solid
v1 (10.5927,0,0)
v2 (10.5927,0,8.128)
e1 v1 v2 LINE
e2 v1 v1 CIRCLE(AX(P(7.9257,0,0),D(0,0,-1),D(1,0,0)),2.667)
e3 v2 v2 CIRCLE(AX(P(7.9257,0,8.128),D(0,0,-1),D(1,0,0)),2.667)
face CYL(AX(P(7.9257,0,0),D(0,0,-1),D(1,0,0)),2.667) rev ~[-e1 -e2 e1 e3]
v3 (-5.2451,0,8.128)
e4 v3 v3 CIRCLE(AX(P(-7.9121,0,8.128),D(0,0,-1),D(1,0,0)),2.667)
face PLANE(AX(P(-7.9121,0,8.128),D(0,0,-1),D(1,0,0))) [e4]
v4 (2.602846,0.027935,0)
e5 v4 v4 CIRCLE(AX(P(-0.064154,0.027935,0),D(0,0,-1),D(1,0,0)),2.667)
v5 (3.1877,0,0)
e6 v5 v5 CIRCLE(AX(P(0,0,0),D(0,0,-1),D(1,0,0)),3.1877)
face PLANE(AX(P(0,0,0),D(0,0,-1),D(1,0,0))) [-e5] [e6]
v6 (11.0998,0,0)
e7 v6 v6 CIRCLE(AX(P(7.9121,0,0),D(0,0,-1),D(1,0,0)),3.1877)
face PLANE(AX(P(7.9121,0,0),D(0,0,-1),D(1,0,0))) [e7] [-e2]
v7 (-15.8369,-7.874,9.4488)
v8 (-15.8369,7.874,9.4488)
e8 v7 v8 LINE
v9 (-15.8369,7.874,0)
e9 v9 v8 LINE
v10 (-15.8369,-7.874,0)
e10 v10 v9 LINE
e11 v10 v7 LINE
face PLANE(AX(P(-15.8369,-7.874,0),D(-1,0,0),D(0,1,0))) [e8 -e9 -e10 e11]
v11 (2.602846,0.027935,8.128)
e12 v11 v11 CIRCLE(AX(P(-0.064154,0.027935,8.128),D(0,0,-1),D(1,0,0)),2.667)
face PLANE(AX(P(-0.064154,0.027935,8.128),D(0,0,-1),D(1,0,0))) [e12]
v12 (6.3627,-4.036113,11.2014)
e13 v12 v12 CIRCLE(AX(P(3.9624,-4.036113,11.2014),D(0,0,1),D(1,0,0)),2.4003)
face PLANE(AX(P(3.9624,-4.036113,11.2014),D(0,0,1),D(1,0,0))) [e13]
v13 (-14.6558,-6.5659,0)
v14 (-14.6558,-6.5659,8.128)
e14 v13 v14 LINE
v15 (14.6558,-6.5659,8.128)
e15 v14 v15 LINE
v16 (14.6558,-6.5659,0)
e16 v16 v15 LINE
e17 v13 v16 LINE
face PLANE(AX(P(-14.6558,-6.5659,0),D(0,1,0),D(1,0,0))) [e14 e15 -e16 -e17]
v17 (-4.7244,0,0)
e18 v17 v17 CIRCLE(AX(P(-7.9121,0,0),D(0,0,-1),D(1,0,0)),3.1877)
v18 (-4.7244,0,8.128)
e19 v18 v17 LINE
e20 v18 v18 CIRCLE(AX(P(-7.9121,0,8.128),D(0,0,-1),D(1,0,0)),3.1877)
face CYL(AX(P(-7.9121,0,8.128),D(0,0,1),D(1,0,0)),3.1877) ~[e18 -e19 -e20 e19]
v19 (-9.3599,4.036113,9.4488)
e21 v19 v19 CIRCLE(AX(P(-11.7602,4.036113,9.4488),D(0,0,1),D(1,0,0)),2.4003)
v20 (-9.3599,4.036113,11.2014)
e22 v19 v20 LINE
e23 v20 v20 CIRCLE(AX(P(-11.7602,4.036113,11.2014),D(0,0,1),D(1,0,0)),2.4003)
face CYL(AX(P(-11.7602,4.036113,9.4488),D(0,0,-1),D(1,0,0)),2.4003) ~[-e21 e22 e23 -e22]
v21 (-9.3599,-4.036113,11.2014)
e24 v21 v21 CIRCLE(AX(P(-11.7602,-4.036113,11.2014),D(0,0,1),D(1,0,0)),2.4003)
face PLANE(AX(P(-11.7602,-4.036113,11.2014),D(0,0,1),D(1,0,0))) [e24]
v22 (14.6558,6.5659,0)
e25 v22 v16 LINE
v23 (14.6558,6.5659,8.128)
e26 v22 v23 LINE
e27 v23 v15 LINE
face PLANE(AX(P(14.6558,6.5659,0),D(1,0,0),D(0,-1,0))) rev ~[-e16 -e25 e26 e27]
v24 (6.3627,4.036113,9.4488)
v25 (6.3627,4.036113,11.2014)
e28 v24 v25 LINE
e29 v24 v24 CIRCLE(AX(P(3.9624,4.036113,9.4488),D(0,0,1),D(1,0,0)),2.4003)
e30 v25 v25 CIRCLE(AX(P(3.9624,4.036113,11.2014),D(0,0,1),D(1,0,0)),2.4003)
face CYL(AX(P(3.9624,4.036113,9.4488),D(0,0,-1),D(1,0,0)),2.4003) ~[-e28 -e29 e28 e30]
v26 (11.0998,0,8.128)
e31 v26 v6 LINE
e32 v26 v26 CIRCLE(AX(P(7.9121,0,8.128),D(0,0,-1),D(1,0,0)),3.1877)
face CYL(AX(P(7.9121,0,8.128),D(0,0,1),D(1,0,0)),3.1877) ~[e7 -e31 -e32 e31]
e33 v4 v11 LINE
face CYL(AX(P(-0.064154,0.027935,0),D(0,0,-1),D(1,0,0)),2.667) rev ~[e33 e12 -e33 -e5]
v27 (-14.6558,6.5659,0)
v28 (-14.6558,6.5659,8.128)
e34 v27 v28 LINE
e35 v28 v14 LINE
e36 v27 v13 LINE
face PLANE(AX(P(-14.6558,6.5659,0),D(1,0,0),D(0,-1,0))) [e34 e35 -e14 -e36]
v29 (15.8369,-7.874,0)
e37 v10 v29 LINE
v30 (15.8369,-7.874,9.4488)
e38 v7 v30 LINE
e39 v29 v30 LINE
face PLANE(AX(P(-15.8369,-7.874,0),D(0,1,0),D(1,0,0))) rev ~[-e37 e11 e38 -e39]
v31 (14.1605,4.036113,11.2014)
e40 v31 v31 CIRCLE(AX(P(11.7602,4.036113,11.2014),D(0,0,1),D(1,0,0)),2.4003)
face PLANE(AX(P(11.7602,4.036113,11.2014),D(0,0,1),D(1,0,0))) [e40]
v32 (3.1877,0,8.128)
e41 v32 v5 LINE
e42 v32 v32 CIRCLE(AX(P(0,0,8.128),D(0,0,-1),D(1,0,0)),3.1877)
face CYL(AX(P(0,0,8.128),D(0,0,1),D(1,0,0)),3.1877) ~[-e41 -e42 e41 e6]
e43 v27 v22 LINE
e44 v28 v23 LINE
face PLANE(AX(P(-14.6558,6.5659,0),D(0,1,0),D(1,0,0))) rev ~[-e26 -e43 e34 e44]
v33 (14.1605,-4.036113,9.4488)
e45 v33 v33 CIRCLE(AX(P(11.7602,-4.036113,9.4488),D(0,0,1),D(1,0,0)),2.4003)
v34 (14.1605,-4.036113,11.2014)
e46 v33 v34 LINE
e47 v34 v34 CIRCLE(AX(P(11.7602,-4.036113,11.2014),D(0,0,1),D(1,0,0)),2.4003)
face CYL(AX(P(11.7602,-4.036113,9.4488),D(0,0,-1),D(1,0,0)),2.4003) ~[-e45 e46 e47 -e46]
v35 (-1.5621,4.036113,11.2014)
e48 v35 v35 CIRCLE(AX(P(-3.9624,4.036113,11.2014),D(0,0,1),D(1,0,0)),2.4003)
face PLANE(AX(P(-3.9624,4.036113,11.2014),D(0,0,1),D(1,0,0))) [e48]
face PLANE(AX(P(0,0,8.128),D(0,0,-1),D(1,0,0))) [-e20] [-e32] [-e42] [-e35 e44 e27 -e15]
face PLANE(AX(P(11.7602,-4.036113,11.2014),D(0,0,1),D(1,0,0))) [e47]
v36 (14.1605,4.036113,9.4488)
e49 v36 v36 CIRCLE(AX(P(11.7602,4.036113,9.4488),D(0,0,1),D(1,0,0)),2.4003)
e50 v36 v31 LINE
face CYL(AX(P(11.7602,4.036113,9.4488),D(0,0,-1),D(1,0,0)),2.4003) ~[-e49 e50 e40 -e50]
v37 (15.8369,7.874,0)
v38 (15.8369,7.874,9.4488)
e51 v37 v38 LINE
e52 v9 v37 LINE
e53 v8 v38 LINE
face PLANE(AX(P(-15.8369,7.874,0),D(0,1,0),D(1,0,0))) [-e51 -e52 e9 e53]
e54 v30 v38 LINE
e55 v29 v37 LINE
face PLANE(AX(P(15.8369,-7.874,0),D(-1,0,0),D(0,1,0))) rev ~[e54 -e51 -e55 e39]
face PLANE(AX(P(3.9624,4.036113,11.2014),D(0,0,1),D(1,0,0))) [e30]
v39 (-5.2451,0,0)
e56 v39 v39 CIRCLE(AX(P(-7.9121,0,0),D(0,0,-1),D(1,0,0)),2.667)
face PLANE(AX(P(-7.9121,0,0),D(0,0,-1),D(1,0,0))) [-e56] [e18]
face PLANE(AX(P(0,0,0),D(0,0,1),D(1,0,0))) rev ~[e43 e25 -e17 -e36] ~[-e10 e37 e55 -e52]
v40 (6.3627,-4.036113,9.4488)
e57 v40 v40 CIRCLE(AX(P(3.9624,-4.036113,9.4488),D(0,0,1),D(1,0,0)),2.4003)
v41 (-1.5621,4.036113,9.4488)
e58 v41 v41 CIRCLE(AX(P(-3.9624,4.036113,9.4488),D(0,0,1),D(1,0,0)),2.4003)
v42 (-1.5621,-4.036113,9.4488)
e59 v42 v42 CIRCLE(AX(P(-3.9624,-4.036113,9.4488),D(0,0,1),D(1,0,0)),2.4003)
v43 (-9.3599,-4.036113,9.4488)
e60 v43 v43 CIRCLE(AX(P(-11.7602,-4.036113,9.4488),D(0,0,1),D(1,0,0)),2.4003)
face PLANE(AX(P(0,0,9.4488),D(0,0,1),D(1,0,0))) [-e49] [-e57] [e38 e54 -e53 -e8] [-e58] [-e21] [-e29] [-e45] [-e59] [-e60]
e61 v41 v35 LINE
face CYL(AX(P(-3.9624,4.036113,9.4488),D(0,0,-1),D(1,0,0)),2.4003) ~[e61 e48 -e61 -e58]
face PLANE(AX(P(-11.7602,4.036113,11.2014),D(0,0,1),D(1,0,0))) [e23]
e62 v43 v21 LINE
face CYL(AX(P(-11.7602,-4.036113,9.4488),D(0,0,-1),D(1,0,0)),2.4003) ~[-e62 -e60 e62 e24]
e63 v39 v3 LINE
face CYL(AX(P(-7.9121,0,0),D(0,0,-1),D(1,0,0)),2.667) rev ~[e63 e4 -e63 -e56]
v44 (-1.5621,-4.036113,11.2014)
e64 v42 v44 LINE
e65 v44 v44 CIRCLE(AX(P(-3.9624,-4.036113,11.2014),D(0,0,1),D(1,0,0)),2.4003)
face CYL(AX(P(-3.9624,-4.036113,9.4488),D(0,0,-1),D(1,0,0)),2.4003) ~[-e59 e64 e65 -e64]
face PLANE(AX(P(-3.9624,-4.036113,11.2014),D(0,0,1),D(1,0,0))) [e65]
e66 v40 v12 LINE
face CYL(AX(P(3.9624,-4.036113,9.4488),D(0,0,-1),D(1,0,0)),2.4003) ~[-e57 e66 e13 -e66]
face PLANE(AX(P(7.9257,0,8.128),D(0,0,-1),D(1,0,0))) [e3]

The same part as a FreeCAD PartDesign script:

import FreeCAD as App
import Part
import Sketcher
Q = App.Units.Quantity


def add_polygon(sketch, points):
    """Adds a closed chain of lines whose ends are joined by coincident constraints."""
    first, n = sketch.GeometryCount, len(points)
    for a, b in zip(points, points[1:] + points[:1]):
        sketch.addGeometry(Part.LineSegment(App.Vector(*a, 0), App.Vector(*b, 0)), False)
    for i in range(n):
        sketch.addConstraint(Sketcher.Constraint("Coincident", first + i, 2, first + (i + 1) % n, 1))

doc = App.newDocument("Part")
params = doc.addObject("Spreadsheet::Sheet", "Params")
for row, (alias, value) in enumerate([
    ("sketch1_height", "0.62 in"),
    ("sketch1_width", "1.247 in"),
    ("pad1_length", "0.372 in"),
    ("sketch2_diameter", "0.189 in"),
    ("pad2_length", "0.069 in"),
    ("sketch3_width", "1.154 in"),
    ("sketch3_height", "0.517 in"),
    ("pocket1_length", "0.32 in"),
    ("sketch4_diameter", "0.251 in"),
    ("pad3_length", "0.32 in"),
    ("sketch5_diameter", "0.21 in"),
    ("pocket2_length", "0.32 in"),
], start=1):
    params.set(f"A{row}", alias)
    params.set(f"B{row}", "=" + value)
    params.setAlias(f"B{row}", alias)

body = doc.addObject("PartDesign::Body", "Body")

# Sketch on XY plane
sketch1 = body.newObject("Sketcher::SketchObject", "Sketch")
sketch1.AttachmentSupport = (doc.getObject("XY_Plane"), [""])
sketch1.MapMode = "FlatFace"
add_polygon(sketch1, [(-16, 8), (-16, -8), (16, -8), (16, 8)])  # lines 0-3
sketch1.addConstraint([
    Sketcher.Constraint("Vertical", 0),
    Sketcher.Constraint("Horizontal", 1),
    Sketcher.Constraint("Vertical", 2),
    Sketcher.Constraint("Horizontal", 3),
    Sketcher.Constraint("Symmetric", 0, 2, 2, 2, -1, 1),
    Sketcher.Constraint("DistanceY", 0, 2, 0, 1, Q("0.62 in")),
    Sketcher.Constraint("DistanceX", 1, 1, 1, 2, Q("1.247 in")),
])
sketch1.setExpression("Constraints[9]", "Params.sketch1_height")
sketch1.setExpression("Constraints[10]", "Params.sketch1_width")
pad1 = body.newObject("PartDesign::Pad", "Pad")
pad1.Profile = sketch1
pad1.setExpression("Length", "Params.pad1_length")

# Sketch on XY plane
sketch2 = body.newObject("Sketcher::SketchObject", "Sketch001")
sketch2.AttachmentSupport = (doc.getObject("XY_Plane"), [""])
sketch2.MapMode = "FlatFace"
sketch2.AttachmentOffset = App.Placement(App.Vector(0, 0, 0.372 * 25.4), App.Rotation())
sketch2.addGeometry([
    Part.Circle(App.Vector(-11.8, 4, 0), App.Vector(0, 0, 1), 2.4),  # 0
    Part.Circle(App.Vector(4, -4, 0), App.Vector(0, 0, 1), 2.4),  # 1
    Part.Circle(App.Vector(4, 4, 0), App.Vector(0, 0, 1), 2.4),  # 2
    Part.Circle(App.Vector(-4, 4, 0), App.Vector(0, 0, 1), 2.4),  # 3
    Part.Circle(App.Vector(-4, -4, 0), App.Vector(0, 0, 1), 2.4),  # 4
    Part.Circle(App.Vector(-11.8, -4, 0), App.Vector(0, 0, 1), 2.4),  # 5
    Part.Circle(App.Vector(11.8, -4, 0), App.Vector(0, 0, 1), 2.4),  # 6
    Part.Circle(App.Vector(11.8, 4, 0), App.Vector(0, 0, 1), 2.4),  # 7
], False)
sketch2.addConstraint([
    Sketcher.Constraint("Equal", 0, 1),
    Sketcher.Constraint("Equal", 1, 2),
    Sketcher.Constraint("Equal", 2, 3),
    Sketcher.Constraint("Equal", 3, 4),
    Sketcher.Constraint("Equal", 4, 5),
    Sketcher.Constraint("Equal", 5, 6),
    Sketcher.Constraint("Equal", 6, 7),
    Sketcher.Constraint("Symmetric", 1, 3, 3, 3, -1, 1),
    Sketcher.Constraint("Symmetric", 2, 3, 4, 3, -1, 1),
    Sketcher.Constraint("Symmetric", 0, 3, 6, 3, -1, 1),
    Sketcher.Constraint("Symmetric", 5, 3, 7, 3, -1, 1),
    Sketcher.Constraint("Symmetric", 2, 3, 3, 3, -2),
    Sketcher.Constraint("Symmetric", 5, 3, 6, 3, -2),
    Sketcher.Constraint("Horizontal", 0, 3, 2, 3),
    Sketcher.Constraint("Diameter", 0, Q("0.189 in")),
    Sketcher.Constraint("DistanceX", 0, 3, -1, 1, Q("0.463 in")),
    Sketcher.Constraint("DistanceX", -1, 1, 1, 3, Q("0.156 in")),
    Sketcher.Constraint("DistanceY", -1, 1, 0, 3, 4.036113),
])
sketch2.setExpression("Constraints[14]", "Params.sketch2_diameter")
pad2 = body.newObject("PartDesign::Pad", "Pad001")
pad2.Profile = sketch2
pad2.setExpression("Length", "Params.pad2_length")

# Sketch on XY plane
sketch3 = body.newObject("Sketcher::SketchObject", "Sketch002")
sketch3.AttachmentSupport = (doc.getObject("XY_Plane"), [""])
sketch3.MapMode = "FlatFace"
add_polygon(sketch3, [(-15, -7), (-15, 7), (15, 7), (15, -7)])  # lines 0-3
sketch3.addConstraint([
    Sketcher.Constraint("Vertical", 0),
    Sketcher.Constraint("Horizontal", 1),
    Sketcher.Constraint("Vertical", 2),
    Sketcher.Constraint("Horizontal", 3),
    Sketcher.Constraint("Symmetric", 0, 2, 2, 2, -1, 1),
    Sketcher.Constraint("DistanceX", 1, 1, 1, 2, Q("1.154 in")),
    Sketcher.Constraint("DistanceY", 0, 1, 0, 2, Q("0.517 in")),
])
sketch3.setExpression("Constraints[9]", "Params.sketch3_width")
sketch3.setExpression("Constraints[10]", "Params.sketch3_height")
pocket1 = body.newObject("PartDesign::Pocket", "Pocket")
pocket1.Profile = sketch3
pocket1.setExpression("Length", "Params.pocket1_length")
pocket1.Reversed = True

# Sketch on XY plane
sketch4 = body.newObject("Sketcher::SketchObject", "Sketch003")
sketch4.AttachmentSupport = (doc.getObject("XY_Plane"), [""])
sketch4.MapMode = "FlatFace"
sketch4.AttachmentOffset = App.Placement(App.Vector(0, 0, 0.32 * 25.4), App.Rotation())
sketch4.addGeometry([
    Part.Circle(App.Vector(-7.9, 0, 0), App.Vector(0, 0, 1), 3.2),
    Part.Circle(App.Vector(7.9, 0, 0), App.Vector(0, 0, 1), 3.2),
    Part.Circle(App.Vector(0, 0, 0), App.Vector(0, 0, 1), 3.2),
], False)
sketch4.addConstraint([
    Sketcher.Constraint("Coincident", 2, 3, -1, 1),
    Sketcher.Constraint("Equal", 0, 1),
    Sketcher.Constraint("Equal", 1, 2),
    Sketcher.Constraint("Symmetric", 0, 3, 1, 3, -1, 1),
    Sketcher.Constraint("PointOnObject", 0, 3, -1),
    Sketcher.Constraint("Diameter", 0, Q("0.251 in")),
    Sketcher.Constraint("DistanceX", 0, 3, 1, 3, Q("0.623 in")),
])
sketch4.setExpression("Constraints[5]", "Params.sketch4_diameter")
pad3 = body.newObject("PartDesign::Pad", "Pad002")
pad3.Profile = sketch4
pad3.setExpression("Length", "Params.pad3_length")
pad3.Reversed = True

# Sketch on XY plane
sketch5 = body.newObject("Sketcher::SketchObject", "Sketch004")
sketch5.AttachmentSupport = (doc.getObject("XY_Plane"), [""])
sketch5.MapMode = "FlatFace"
sketch5.addGeometry([
    Part.Circle(App.Vector(-7.9, 0, 0), App.Vector(0, 0, 1), 2.7),
    Part.Circle(App.Vector(-0.1, 0, 0), App.Vector(0, 0, 1), 2.7),
    Part.Circle(App.Vector(7.9, 0, 0), App.Vector(0, 0, 1), 2.7),
], False)
sketch5.addConstraint([
    Sketcher.Constraint("Equal", 0, 1),
    Sketcher.Constraint("Equal", 1, 2),
    Sketcher.Constraint("PointOnObject", 0, 3, -1),
    Sketcher.Constraint("PointOnObject", 2, 3, -1),
    Sketcher.Constraint("Diameter", 0, Q("0.21 in")),
    Sketcher.Constraint("DistanceX", 0, 3, -1, 1, Q("0.3115 in")),
    Sketcher.Constraint("DistanceY", -1, 1, 1, 3, Q("0.0010998 in")),
    Sketcher.Constraint("DistanceX", -1, 1, 2, 3, 7.9257),
    Sketcher.Constraint("DistanceX", 1, 3, -1, 1, 0.064154),
])
sketch5.setExpression("Constraints[4]", "Params.sketch5_diameter")
pocket2 = body.newObject("PartDesign::Pocket", "Pocket001")
pocket2.Profile = sketch5
pocket2.setExpression("Length", "Params.pocket2_length")
pocket2.Reversed = True

doc.recompute()
